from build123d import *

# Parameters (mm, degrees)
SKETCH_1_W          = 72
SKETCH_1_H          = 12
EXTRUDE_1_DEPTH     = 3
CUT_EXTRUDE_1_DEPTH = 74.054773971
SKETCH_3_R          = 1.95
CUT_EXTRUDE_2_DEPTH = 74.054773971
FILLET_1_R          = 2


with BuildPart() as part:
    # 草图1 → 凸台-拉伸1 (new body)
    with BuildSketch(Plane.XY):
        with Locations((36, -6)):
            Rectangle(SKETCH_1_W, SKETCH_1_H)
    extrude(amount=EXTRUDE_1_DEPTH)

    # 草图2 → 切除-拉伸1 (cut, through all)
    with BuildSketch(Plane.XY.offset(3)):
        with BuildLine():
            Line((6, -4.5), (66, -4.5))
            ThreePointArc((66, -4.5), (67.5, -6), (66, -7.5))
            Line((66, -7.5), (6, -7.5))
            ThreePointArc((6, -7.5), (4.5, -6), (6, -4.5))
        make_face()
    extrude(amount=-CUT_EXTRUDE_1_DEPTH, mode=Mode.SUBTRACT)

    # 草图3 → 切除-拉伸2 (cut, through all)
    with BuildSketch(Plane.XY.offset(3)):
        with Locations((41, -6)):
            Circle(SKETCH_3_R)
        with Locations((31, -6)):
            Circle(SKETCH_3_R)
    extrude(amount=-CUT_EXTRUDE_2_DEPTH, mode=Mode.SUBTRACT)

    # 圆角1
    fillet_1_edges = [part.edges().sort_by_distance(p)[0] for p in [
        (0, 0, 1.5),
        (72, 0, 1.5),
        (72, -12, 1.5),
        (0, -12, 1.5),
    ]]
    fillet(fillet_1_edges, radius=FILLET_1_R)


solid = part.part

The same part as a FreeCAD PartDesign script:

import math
import FreeCAD as App
import Part
import Sketcher
from FreeCAD import Vector
Q = App.Units.Quantity


def edges_at(feature, points):
    """Names of the edges that pass closest to the given points."""
    edges = feature.Shape.Edges
    near = lambda p: min(range(len(edges)), key=lambda i: edges[i].distToShape(Part.Vertex(*p))[0])
    return sorted({f"Edge{near(p) + 1}" for p in points})


def add_polygon(sketch, points):
    """Adds a closed chain of lines whose ends are joined by coincident constraints."""
    first, n = sketch.GeometryCount, len(points)
    for a, b in zip(points, points[1:] + points[:1]):
        sketch.addGeometry(Part.LineSegment(App.Vector(*a, 0), App.Vector(*b, 0)), False)
    for i in range(n):
        sketch.addConstraint(Sketcher.Constraint("Coincident", first + i, 2, first + (i + 1) % n, 1))

doc = App.newDocument("Part")
body = doc.addObject("PartDesign::Body", "Body")

# Sketch on XY plane
sketch1 = doc.addObject("Sketcher::SketchObject", "Sketch")
body.addObject(sketch1)
sketch1.AttachmentSupport = (doc.XY_Plane, [""])
sketch1.MapMode = "FlatFace"
add_polygon(sketch1, [(0, 0), (0, -12), (72, -12), (72, 0)])  # lines 0-3
sketch1.addConstraint(Sketcher.Constraint("Vertical", 0))
sketch1.addConstraint(Sketcher.Constraint("Horizontal", 1))
sketch1.addConstraint(Sketcher.Constraint("Vertical", 2))
sketch1.addConstraint(Sketcher.Constraint("Horizontal", 3))
sketch1.addConstraint(Sketcher.Constraint("Coincident", 3, 2, -1, 1))
sketch1.addConstraint(Sketcher.Constraint("DistanceX", 1, 1, 1, 2, Q("72 mm")))
sketch1.addConstraint(Sketcher.Constraint("DistanceY", 0, 2, 0, 1, Q("12 mm")))
pad1 = doc.addObject("PartDesign::Pad", "Pad")
body.addObject(pad1)
pad1.Profile = sketch1
pad1.Length = 3

# Sketch on XY plane
sketch2 = doc.addObject("Sketcher::SketchObject", "Sketch001")
body.addObject(sketch2)
sketch2.AttachmentSupport = (doc.XY_Plane, [""])
sketch2.MapMode = "FlatFace"
sketch2.AttachmentOffset = App.Placement(Vector(0, 0, 3), App.Rotation())
sketch2.addGeometry(Part.LineSegment(Vector(66, -4.5, 0), Vector(6, -4.5, 0)), False)
sketch2.addGeometry(Part.ArcOfCircle(Part.Circle(Vector(6, -6, 0), Vector(0, 0, 1), 1.5), math.radians(90), math.radians(270)), False)
sketch2.addGeometry(Part.LineSegment(Vector(6, -7.5, 0), Vector(66, -7.5, 0)), False)
sketch2.addGeometry(Part.ArcOfCircle(Part.Circle(Vector(66, -6, 0), Vector(0, 0, 1), 1.5), math.radians(-90), math.radians(90)), False)
sketch2.addConstraint(Sketcher.Constraint("Tangent", 0, 2, 1, 1))
sketch2.addConstraint(Sketcher.Constraint("Tangent", 1, 2, 2, 1))
sketch2.addConstraint(Sketcher.Constraint("Tangent", 2, 2, 3, 1))
sketch2.addConstraint(Sketcher.Constraint("Tangent", 3, 2, 0, 1))
sketch2.addConstraint(Sketcher.Constraint("Horizontal", 0))
sketch2.addConstraint(Sketcher.Constraint("Horizontal", 2))
sketch2.addConstraint(Sketcher.Constraint("Radius", 1, Q("1.5 mm")))
sketch2.addConstraint(Sketcher.Constraint("DistanceX", 0, 2, 0, 1, Q("60 mm")))
sketch2.addConstraint(Sketcher.Constraint("DistanceX", -1, 1, 1, 3, Q("6 mm")))
sketch2.addConstraint(Sketcher.Constraint("DistanceY", 1, 3, -1, 1, Q("6 mm")))
pocket1 = doc.addObject("PartDesign::Pocket", "Pocket")
body.addObject(pocket1)
pocket1.Profile = sketch2
pocket1.Type = "ThroughAll"

# Sketch on XY plane
sketch3 = doc.addObject("Sketcher::SketchObject", "Sketch002")
body.addObject(sketch3)
sketch3.AttachmentSupport = (doc.XY_Plane, [""])
sketch3.MapMode = "FlatFace"
sketch3.AttachmentOffset = App.Placement(Vector(0, 0, 3), App.Rotation())
sketch3.addGeometry(Part.Circle(Vector(41, -6, 0), Vector(0, 0, 1), 1.95), False)
sketch3.addGeometry(Part.Circle(Vector(31, -6, 0), Vector(0, 0, 1), 1.95), False)
sketch3.addConstraint(Sketcher.Constraint("Equal", 0, 1))
sketch3.addConstraint(Sketcher.Constraint("Horizontal", 0, 3, 1, 3))
sketch3.addConstraint(Sketcher.Constraint("Diameter", 0, Q("3.9 mm")))
sketch3.addConstraint(Sketcher.Constraint("DistanceX", -1, 1, 0, 3, Q("41 mm")))
sketch3.addConstraint(Sketcher.Constraint("DistanceY", 0, 3, -1, 1, Q("6 mm")))
sketch3.addConstraint(Sketcher.Constraint("DistanceX", -1, 1, 1, 3, Q("31 mm")))
pocket2 = doc.addObject("PartDesign::Pocket", "Pocket001")
body.addObject(pocket2)
pocket2.Profile = sketch3
pocket2.Type = "ThroughAll"
doc.recompute()

fillet = doc.addObject("PartDesign::Fillet", "Fillet")
body.addObject(fillet)
fillet.Base = (pocket2, edges_at(pocket2, [
    (0, 0, 1.5),
    (72, 0, 1.5),
    (72, -12, 1.5),
    (0, -12, 1.5),
]))
fillet.Radius = 2

doc.recompute()
